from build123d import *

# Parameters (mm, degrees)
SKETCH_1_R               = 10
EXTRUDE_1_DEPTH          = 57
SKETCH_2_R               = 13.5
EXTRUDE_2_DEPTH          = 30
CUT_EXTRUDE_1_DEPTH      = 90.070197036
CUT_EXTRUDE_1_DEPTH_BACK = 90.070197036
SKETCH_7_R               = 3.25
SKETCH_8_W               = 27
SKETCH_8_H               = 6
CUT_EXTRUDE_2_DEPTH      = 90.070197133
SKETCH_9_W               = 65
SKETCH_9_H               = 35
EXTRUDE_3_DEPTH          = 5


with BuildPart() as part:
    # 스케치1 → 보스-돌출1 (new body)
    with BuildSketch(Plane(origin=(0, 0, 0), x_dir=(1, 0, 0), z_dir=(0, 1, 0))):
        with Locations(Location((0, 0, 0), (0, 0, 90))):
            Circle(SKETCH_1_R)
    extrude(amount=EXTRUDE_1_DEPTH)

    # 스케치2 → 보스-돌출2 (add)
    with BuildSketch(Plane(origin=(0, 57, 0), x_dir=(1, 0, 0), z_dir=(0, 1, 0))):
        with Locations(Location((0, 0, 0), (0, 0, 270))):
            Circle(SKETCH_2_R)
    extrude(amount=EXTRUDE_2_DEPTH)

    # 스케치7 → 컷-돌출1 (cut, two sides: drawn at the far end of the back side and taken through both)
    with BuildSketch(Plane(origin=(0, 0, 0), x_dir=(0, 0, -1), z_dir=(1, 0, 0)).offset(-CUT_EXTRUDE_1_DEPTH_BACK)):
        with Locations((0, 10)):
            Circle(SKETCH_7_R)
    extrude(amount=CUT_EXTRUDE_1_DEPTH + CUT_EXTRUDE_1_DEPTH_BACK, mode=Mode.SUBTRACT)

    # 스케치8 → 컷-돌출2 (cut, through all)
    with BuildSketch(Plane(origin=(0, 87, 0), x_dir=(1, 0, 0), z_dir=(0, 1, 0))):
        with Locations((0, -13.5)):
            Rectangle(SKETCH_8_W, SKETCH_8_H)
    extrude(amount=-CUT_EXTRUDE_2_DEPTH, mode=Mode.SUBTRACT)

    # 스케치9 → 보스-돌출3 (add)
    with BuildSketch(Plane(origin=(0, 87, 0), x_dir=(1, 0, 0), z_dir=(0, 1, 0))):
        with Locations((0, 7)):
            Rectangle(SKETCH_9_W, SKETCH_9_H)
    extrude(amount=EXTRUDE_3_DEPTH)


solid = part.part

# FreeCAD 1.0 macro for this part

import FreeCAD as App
import Part
import Sketcher
Q = App.Units.Quantity


def add_polygon(sketch, points):
    """Adds a closed chain of lines whose ends are joined by coincident constraints."""
    first, n = sketch.GeometryCount, len(points)
    for a, b in zip(points, points[1:] + points[:1]):
        sketch.addGeometry(Part.LineSegment(App.Vector(*a, 0), App.Vector(*b, 0)), False)
    for i in range(n):
        sketch.addConstraint(Sketcher.Constraint("Coincident", first + i, 2, first + (i + 1) % n, 1))

doc = App.newDocument("Part")
body = doc.addObject("PartDesign::Body", "Body")

sketch1 = body.newObject("Sketcher::SketchObject", "Sketch")
sketch1.AttachmentSupport = (doc.getObject("XZ_Plane"), [""])
sketch1.MapMode = "FlatFace"
sketch1.addGeometry(Part.Circle(App.Vector(0, 0, 0), App.Vector(0, 0, 1), 10), False)
sketch1.addConstraint([
    Sketcher.Constraint("Coincident", 0, 3, -1, 1),
    Sketcher.Constraint("Diameter", 0, Q("20 mm")),
])
pad1 = body.newObject("PartDesign::Pad", "Pad")
pad1.Profile = sketch1
pad1.Length = 57
pad1.Reversed = True

sketch2 = body.newObject("Sketcher::SketchObject", "Sketch001")
sketch2.AttachmentSupport = (doc.getObject("XZ_Plane"), [""])
sketch2.MapMode = "FlatFace"
sketch2.AttachmentOffset = App.Placement(App.Vector(0, 0, -57), App.Rotation())
sketch2.addGeometry(Part.Circle(App.Vector(0, 0, 0), App.Vector(0, 0, 1), 14), False)
sketch2.addConstraint([
    Sketcher.Constraint("Coincident", 0, 3, -1, 1),
    Sketcher.Constraint("Diameter", 0, Q("27 mm")),
])
pad2 = body.newObject("PartDesign::Pad", "Pad001")
pad2.Profile = sketch2
pad2.Length = 30
pad2.Reversed = True

sketch3 = body.newObject("Sketcher::SketchObject", "Sketch002")
sketch3.AttachmentSupport = (doc.getObject("YZ_Plane"), [""])
sketch3.MapMode = "FlatFace"
sketch3.addGeometry(Part.Circle(App.Vector(10, 0, 0), App.Vector(0, 0, 1), 3.2), False)
sketch3.addConstraint([
    Sketcher.Constraint("PointOnObject", 0, 3, -1),
    Sketcher.Constraint("Diameter", 0, Q("6.5 mm")),
    Sketcher.Constraint("DistanceX", -1, 1, 0, 3, Q("10 mm")),
])
pocket1 = body.newObject("PartDesign::Pocket", "Pocket")
pocket1.Profile = sketch3
pocket1.Type = "ThroughAll"
pocket1.Midplane = True

sketch4 = body.newObject("Sketcher::SketchObject", "Sketch003")
sketch4.AttachmentSupport = (doc.getObject("XZ_Plane"), [""])
sketch4.MapMode = "FlatFace"
sketch4.AttachmentOffset = App.Placement(App.Vector(0, 0, -87), App.Rotation())
add_polygon(sketch4, [(-14, 10), (-14, 16), (14, 16), (14, 10)])
sketch4.addConstraint([
    Sketcher.Constraint("Vertical", 0),
    Sketcher.Constraint("Horizontal", 1),
    Sketcher.Constraint("Vertical", 2),
    Sketcher.Constraint("Horizontal", 3),
    Sketcher.Constraint("DistanceX", 1, 1, 1, 2, Q("27 mm")),
    Sketcher.Constraint("DistanceY", 0, 1, 0, 2, Q("6 mm")),
    Sketcher.Constraint("DistanceX", 0, 2, -1, 1, Q("13.5 mm")),
    Sketcher.Constraint("DistanceY", -1, 1, 0, 2, Q("16.5 mm")),
])
pocket2 = body.newObject("PartDesign::Pocket", "Pocket001")
pocket2.Profile = sketch4
pocket2.Type = "ThroughAll"
pocket2.Reversed = True

sketch5 = body.newObject("Sketcher::SketchObject", "Sketch004")
sketch5.AttachmentSupport = (doc.getObject("XZ_Plane"), [""])
sketch5.MapMode = "FlatFace"
sketch5.AttachmentOffset = App.Placement(App.Vector(0, 0, -87), App.Rotation())
add_polygon(sketch5, [(-32, -24), (-32, 10), (32, 10), (32, -24)])
sketch5.addConstraint([
    Sketcher.Constraint("Vertical", 0),
    Sketcher.Constraint("Horizontal", 1),
    Sketcher.Constraint("Vertical", 2),
    Sketcher.Constraint("Horizontal", 3),
    Sketcher.Constraint("DistanceX", 1, 1, 1, 2, Q("65 mm")),
    Sketcher.Constraint("DistanceY", 0, 1, 0, 2, Q("35 mm")),
    Sketcher.Constraint("DistanceX", 0, 2, -1, 1, Q("32.5 mm")),
    Sketcher.Constraint("DistanceY", -1, 1, 0, 2, Q("10.5 mm")),
])
pad3 = body.newObject("PartDesign::Pad", "Pad002")
pad3.Profile = sketch5
pad3.Length = 5
pad3.Reversed = True

doc.recompute()
